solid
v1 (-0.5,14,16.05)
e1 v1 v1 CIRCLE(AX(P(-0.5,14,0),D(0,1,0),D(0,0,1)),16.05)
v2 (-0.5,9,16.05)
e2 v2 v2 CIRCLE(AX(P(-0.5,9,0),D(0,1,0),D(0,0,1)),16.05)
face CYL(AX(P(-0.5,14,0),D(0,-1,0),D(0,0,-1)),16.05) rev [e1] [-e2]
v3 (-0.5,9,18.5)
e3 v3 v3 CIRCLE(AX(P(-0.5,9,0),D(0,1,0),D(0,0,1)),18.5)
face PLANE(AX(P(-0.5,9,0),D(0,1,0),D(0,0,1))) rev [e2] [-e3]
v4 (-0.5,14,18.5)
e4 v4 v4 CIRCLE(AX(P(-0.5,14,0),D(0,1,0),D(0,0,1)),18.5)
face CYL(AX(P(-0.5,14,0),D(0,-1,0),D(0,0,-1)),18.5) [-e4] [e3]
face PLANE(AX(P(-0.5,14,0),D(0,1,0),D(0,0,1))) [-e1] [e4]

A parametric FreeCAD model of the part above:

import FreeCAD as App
import Part
import Sketcher
Q = App.Units.Quantity

doc = App.newDocument("Part")
body = doc.addObject("PartDesign::Body", "Body")

# Sketch on XZ plane
sketch1 = doc.addObject("Sketcher::SketchObject", "Sketch")
body.addObject(sketch1)
sketch1.AttachmentSupport = (doc.XZ_Plane, [""])
sketch1.MapMode = "FlatFace"
sketch1.AttachmentOffset = App.Placement(App.Vector(0, 0, -9), App.Rotation())
sketch1.addGeometry([
    Part.Circle(App.Vector(-0.5, 0, 0), App.Vector(0, 0, 1), 18.5),
    Part.Circle(App.Vector(-0.5, 0, 0), App.Vector(0, 0, 1), 16.05),
], False)
sketch1.addConstraint([
    Sketcher.Constraint("Coincident", 1, 3, 0, 3),
    Sketcher.Constraint("PointOnObject", 0, 3, -1),
    Sketcher.Constraint("Diameter", 0, Q("37 mm")),
    Sketcher.Constraint("Diameter", 1, Q("32.1 mm")),
    Sketcher.Constraint("DistanceX", 0, 3, -1, 1, Q("0.5 mm")),
])
pad1 = doc.addObject("PartDesign::Pad", "Pad")
body.addObject(pad1)
pad1.Profile = sketch1
pad1.Length = 5
pad1.Reversed = True

doc.recompute()
